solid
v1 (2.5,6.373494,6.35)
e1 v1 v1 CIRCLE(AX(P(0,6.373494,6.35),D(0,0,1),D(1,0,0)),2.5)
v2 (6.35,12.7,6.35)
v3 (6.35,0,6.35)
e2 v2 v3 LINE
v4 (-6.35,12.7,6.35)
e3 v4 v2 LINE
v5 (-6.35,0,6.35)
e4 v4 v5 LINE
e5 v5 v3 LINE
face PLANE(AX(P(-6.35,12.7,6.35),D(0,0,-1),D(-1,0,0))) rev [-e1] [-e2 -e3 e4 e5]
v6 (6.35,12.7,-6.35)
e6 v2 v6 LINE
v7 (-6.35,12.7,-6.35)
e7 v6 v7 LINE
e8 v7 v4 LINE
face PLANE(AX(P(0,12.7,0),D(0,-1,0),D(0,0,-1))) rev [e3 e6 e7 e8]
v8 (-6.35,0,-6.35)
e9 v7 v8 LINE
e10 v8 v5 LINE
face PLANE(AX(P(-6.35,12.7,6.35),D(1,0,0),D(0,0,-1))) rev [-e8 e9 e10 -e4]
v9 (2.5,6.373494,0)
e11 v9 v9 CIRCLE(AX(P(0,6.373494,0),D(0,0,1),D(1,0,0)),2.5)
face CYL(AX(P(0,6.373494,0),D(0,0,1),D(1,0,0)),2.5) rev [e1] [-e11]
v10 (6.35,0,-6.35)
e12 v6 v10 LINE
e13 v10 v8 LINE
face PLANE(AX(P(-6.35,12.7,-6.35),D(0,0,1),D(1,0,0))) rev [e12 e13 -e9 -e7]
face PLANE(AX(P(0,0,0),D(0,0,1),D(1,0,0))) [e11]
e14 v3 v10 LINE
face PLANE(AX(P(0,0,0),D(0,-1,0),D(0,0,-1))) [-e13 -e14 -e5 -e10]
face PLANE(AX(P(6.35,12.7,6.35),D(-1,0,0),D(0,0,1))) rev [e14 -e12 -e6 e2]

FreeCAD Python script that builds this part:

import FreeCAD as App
import Part
import Sketcher
Q = App.Units.Quantity

doc = App.newDocument("Part")
params = doc.addObject("Spreadsheet::Sheet", "Params")
for row, (alias, value) in enumerate([
    ("sketch1_width", "0.5 in"),
    ("pad1_length", "0.5 in"),
    ("pocket1_length", "0.25 in"),
], start=1):
    params.set(f"A{row}", alias)
    params.set(f"B{row}", "=" + value)
    params.setAlias(f"B{row}", alias)

body = doc.addObject("PartDesign::Body", "Body")

sketch1 = body.newObject("Sketcher::SketchObject", "Sketch")
sketch1.AttachmentSupport = (doc.getObject("XZ_Plane"), [""])
sketch1.MapMode = "FlatFace"
sketch1.addGeometry([
    Part.LineSegment(App.Vector(-6, -6, 0), App.Vector(-6, 6, 0)),
    Part.LineSegment(App.Vector(-6, 6, 0), App.Vector(6, 6, 0)),
    Part.LineSegment(App.Vector(6, 6, 0), App.Vector(6, -6, 0)),
    Part.LineSegment(App.Vector(6, -6, 0), App.Vector(-6, -6, 0)),
], False)
sketch1.addConstraint([
    Sketcher.Constraint("Coincident", 0, 2, 1, 1),
    Sketcher.Constraint("Coincident", 1, 2, 2, 1),
    Sketcher.Constraint("Coincident", 2, 2, 3, 1),
    Sketcher.Constraint("Coincident", 3, 2, 0, 1),
    Sketcher.Constraint("Vertical", 0),
    Sketcher.Constraint("Horizontal", 1),
    Sketcher.Constraint("Vertical", 2),
    Sketcher.Constraint("Horizontal", 3),
    Sketcher.Constraint("Symmetric", 0, 2, 2, 2, -1, 1),
    Sketcher.Constraint("Equal", 3, 0),
    Sketcher.Constraint("DistanceX", 1, 1, 1, 2, Q("0.5 in")),
])
sketch1.setExpression("Constraints[10]", "Params.sketch1_width")
pad1 = body.newObject("PartDesign::Pad", "Pad")
pad1.Profile = sketch1
pad1.setExpression("Length", "Params.pad1_length")
pad1.Reversed = True

sketch2 = body.newObject("Sketcher::SketchObject", "Sketch001")
sketch2.AttachmentSupport = (doc.getObject("XY_Plane"), [""])
sketch2.MapMode = "FlatFace"
sketch2.AttachmentOffset = App.Placement(App.Vector(0, 0, 0.25 * 25.4), App.Rotation())
sketch2.addGeometry(Part.Circle(App.Vector(0, 6.4, 0), App.Vector(0, 0, 1), 2.5), False)
sketch2.addConstraint([
    Sketcher.Constraint("PointOnObject", 0, 3, -2),
    Sketcher.Constraint("Diameter", 0, 5.0),
    Sketcher.Constraint("DistanceY", -1, 1, 0, 3, 6.373494),
])
pocket1 = body.newObject("PartDesign::Pocket", "Pocket")
pocket1.Profile = sketch2
pocket1.setExpression("Length", "Params.pocket1_length")

doc.recompute()
